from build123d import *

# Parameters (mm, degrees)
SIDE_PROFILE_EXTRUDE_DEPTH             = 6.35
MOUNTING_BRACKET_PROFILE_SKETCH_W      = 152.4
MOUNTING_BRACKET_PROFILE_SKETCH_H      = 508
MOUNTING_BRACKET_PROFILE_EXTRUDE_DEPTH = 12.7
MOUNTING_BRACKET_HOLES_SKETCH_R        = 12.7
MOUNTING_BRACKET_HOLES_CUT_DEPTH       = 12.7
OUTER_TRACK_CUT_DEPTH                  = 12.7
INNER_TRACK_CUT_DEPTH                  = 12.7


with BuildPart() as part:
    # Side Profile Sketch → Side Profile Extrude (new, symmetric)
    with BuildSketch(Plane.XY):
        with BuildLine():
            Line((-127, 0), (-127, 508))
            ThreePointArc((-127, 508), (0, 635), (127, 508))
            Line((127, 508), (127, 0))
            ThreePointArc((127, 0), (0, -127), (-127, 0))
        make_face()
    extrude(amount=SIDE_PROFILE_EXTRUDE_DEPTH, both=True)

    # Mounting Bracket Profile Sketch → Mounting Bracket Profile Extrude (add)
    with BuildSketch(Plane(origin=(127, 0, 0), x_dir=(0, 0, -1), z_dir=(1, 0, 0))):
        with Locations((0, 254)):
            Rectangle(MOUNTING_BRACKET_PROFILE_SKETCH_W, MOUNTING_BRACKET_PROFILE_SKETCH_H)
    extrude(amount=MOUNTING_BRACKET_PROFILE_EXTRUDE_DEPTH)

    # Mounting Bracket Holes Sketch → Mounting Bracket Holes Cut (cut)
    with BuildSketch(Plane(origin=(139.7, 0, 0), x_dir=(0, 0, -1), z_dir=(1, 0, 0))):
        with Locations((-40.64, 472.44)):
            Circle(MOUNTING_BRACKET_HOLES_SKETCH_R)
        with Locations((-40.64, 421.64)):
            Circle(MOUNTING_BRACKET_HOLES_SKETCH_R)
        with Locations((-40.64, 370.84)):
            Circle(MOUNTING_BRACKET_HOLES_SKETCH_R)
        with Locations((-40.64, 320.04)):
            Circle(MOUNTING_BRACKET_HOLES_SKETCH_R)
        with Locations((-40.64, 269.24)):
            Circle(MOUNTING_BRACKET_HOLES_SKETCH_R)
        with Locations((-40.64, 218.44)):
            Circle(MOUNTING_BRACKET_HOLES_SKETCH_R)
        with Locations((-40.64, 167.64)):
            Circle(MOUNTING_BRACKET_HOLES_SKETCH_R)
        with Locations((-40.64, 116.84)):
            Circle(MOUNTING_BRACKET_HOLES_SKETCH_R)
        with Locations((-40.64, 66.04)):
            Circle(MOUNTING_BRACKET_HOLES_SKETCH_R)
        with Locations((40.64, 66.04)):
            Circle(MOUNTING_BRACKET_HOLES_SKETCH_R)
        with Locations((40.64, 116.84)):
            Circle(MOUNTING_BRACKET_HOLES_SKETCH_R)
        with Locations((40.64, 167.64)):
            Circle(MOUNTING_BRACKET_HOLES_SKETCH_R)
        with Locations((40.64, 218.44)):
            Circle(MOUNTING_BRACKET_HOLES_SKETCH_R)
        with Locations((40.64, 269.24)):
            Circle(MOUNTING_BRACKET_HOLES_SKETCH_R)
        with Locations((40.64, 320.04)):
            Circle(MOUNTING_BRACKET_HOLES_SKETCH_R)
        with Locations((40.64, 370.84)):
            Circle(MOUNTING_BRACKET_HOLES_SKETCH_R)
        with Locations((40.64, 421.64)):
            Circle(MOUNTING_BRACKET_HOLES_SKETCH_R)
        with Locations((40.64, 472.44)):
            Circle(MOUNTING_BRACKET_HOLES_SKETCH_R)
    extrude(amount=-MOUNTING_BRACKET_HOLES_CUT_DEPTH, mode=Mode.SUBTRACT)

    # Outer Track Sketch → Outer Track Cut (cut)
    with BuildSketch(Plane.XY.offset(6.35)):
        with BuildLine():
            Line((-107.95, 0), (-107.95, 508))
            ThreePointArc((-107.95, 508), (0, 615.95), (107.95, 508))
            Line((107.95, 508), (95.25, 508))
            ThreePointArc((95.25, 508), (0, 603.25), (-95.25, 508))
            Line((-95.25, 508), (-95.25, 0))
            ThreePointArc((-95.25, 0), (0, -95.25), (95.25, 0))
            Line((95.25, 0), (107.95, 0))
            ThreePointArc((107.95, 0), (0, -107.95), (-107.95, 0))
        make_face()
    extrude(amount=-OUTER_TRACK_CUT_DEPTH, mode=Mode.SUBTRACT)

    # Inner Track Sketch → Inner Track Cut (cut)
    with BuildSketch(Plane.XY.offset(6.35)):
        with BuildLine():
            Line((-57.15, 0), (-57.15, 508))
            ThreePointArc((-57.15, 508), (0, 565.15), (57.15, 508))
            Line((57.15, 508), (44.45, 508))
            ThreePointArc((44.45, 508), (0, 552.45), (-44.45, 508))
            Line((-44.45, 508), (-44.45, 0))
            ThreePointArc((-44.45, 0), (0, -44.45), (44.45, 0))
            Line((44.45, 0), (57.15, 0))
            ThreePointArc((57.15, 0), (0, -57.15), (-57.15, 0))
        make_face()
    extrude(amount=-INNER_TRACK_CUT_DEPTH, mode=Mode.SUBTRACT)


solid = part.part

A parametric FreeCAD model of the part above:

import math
import FreeCAD as App
import Part
import Sketcher
Q = App.Units.Quantity


def add_polygon(sketch, points):
    """Adds a closed chain of lines whose ends are joined by coincident constraints."""
    first, n = sketch.GeometryCount, len(points)
    for a, b in zip(points, points[1:] + points[:1]):
        sketch.addGeometry(Part.LineSegment(App.Vector(*a, 0), App.Vector(*b, 0)), False)
    for i in range(n):
        sketch.addConstraint(Sketcher.Constraint("Coincident", first + i, 2, first + (i + 1) % n, 1))

doc = App.newDocument("Part")
body = doc.addObject("PartDesign::Body", "Body")

# Sketch on XY plane
sketch1 = doc.addObject("Sketcher::SketchObject", "Sketch")
body.addObject(sketch1)
sketch1.AttachmentSupport = (doc.XY_Plane, [""])
sketch1.MapMode = "FlatFace"
sketch1.addGeometry([
    Part.LineSegment(App.Vector(-127, 508, 0), App.Vector(-127, 0, 0)),
    Part.ArcOfCircle(Part.Circle(App.Vector(0, 0, 0), App.Vector(0, 0, 1), 127), math.radians(180), math.radians(360)),
    Part.LineSegment(App.Vector(127, 0, 0), App.Vector(127, 508, 0)),
    Part.ArcOfCircle(Part.Circle(App.Vector(0, 508, 0), App.Vector(0, 0, 1), 127), math.radians(0), math.radians(180)),
], False)
sketch1.addConstraint([
    Sketcher.Constraint("Tangent", 0, 2, 1, 1),
    Sketcher.Constraint("Tangent", 1, 2, 2, 1),
    Sketcher.Constraint("Tangent", 2, 2, 3, 1),
    Sketcher.Constraint("Tangent", 3, 2, 0, 1),
    Sketcher.Constraint("Vertical", 0),
    Sketcher.Constraint("Vertical", 2),
    Sketcher.Constraint("Coincident", 1, 3, -1, 1),
    Sketcher.Constraint("Radius", 1, Q("5 in")),
    Sketcher.Constraint("DistanceY", 0, 2, 0, 1, Q("20 in")),
])
pad1 = doc.addObject("PartDesign::Pad", "Pad")
body.addObject(pad1)
pad1.Profile = sketch1
pad1.Length = Q("0.5 in")
pad1.Midplane = True

# Sketch on YZ plane
sketch2 = doc.addObject("Sketcher::SketchObject", "Sketch001")
body.addObject(sketch2)
sketch2.AttachmentSupport = (doc.YZ_Plane, [""])
sketch2.MapMode = "FlatFace"
sketch2.AttachmentOffset = App.Placement(App.Vector(0, 0, 5 * 25.4), App.Rotation())
add_polygon(sketch2, [(508, 76), (0, 76), (0, -76), (508, -76)])  # lines 0-3
sketch2.addConstraint([
    Sketcher.Constraint("Horizontal", 0),
    Sketcher.Constraint("Vertical", 1),
    Sketcher.Constraint("Horizontal", 2),
    Sketcher.Constraint("Vertical", 3),
    Sketcher.Constraint("Symmetric", 0, 2, 1, 2, -1, 1),
    Sketcher.Constraint("DistanceX", 0, 2, 0, 1, Q("20 in")),
    Sketcher.Constraint("DistanceY", 1, 2, 1, 1, Q("6 in")),
])
pad2 = doc.addObject("PartDesign::Pad", "Pad001")
body.addObject(pad2)
pad2.Profile = sketch2
pad2.Length = Q("0.5 in")

# Sketch on YZ plane
sketch3 = doc.addObject("Sketcher::SketchObject", "Sketch002")
body.addObject(sketch3)
sketch3.AttachmentSupport = (doc.YZ_Plane, [""])
sketch3.MapMode = "FlatFace"
sketch3.AttachmentOffset = App.Placement(App.Vector(0, 0, 5.5 * 25.4), App.Rotation())
sketch3.addGeometry([
    Part.Circle(App.Vector(472, 41, 0), App.Vector(0, 0, 1), 13),  # 0
    Part.Circle(App.Vector(422, 41, 0), App.Vector(0, 0, 1), 13),  # 1
    Part.Circle(App.Vector(371, 41, 0), App.Vector(0, 0, 1), 13),  # 2
    Part.Circle(App.Vector(320, 41, 0), App.Vector(0, 0, 1), 13),  # 3
    Part.Circle(App.Vector(269, 41, 0), App.Vector(0, 0, 1), 13),  # 4
    Part.Circle(App.Vector(218, 41, 0), App.Vector(0, 0, 1), 13),  # 5
    Part.Circle(App.Vector(168, 41, 0), App.Vector(0, 0, 1), 13),  # 6
    Part.Circle(App.Vector(117, 41, 0), App.Vector(0, 0, 1), 13),  # 7
    Part.Circle(App.Vector(66, 41, 0), App.Vector(0, 0, 1), 13),  # 8
    Part.Circle(App.Vector(66, -41, 0), App.Vector(0, 0, 1), 13),  # 9
    Part.Circle(App.Vector(117, -41, 0), App.Vector(0, 0, 1), 13),  # 10
    Part.Circle(App.Vector(168, -41, 0), App.Vector(0, 0, 1), 13),  # 11
    Part.Circle(App.Vector(218, -41, 0), App.Vector(0, 0, 1), 13),  # 12
    Part.Circle(App.Vector(269, -41, 0), App.Vector(0, 0, 1), 13),  # 13
    Part.Circle(App.Vector(320, -41, 0), App.Vector(0, 0, 1), 13),  # 14
    Part.Circle(App.Vector(371, -41, 0), App.Vector(0, 0, 1), 13),  # 15
    Part.Circle(App.Vector(422, -41, 0), App.Vector(0, 0, 1), 13),  # 16
    Part.Circle(App.Vector(472, -41, 0), App.Vector(0, 0, 1), 13),  # 17
], False)
sketch3.addConstraint([
    Sketcher.Constraint("Equal", 0, 1),
    Sketcher.Constraint("Equal", 1, 2),
    Sketcher.Constraint("Equal", 2, 3),
    Sketcher.Constraint("Equal", 3, 4),
    Sketcher.Constraint("Equal", 4, 5),
    Sketcher.Constraint("Equal", 5, 6),
    Sketcher.Constraint("Equal", 6, 7),
    Sketcher.Constraint("Equal", 7, 8),
    Sketcher.Constraint("Equal", 8, 9),
    Sketcher.Constraint("Equal", 9, 10),
    Sketcher.Constraint("Equal", 10, 11),
    Sketcher.Constraint("Equal", 11, 12),
    Sketcher.Constraint("Equal", 12, 13),
    Sketcher.Constraint("Equal", 13, 14),
    Sketcher.Constraint("Equal", 14, 15),
    Sketcher.Constraint("Equal", 15, 16),
    Sketcher.Constraint("Equal", 16, 17),
    Sketcher.Constraint("Symmetric", 8, 3, 9, 3, -1),
    Sketcher.Constraint("Symmetric", 7, 3, 10, 3, -1),
    Sketcher.Constraint("Symmetric", 6, 3, 11, 3, -1),
    Sketcher.Constraint("Symmetric", 5, 3, 12, 3, -1),
    Sketcher.Constraint("Symmetric", 4, 3, 13, 3, -1),
    Sketcher.Constraint("Symmetric", 3, 3, 14, 3, -1),
    Sketcher.Constraint("Symmetric", 2, 3, 15, 3, -1),
    Sketcher.Constraint("Symmetric", 1, 3, 16, 3, -1),
    Sketcher.Constraint("Symmetric", 0, 3, 17, 3, -1),
    Sketcher.Constraint("Horizontal", 0, 3, 1, 3),
    Sketcher.Constraint("Horizontal", 1, 3, 2, 3),
    Sketcher.Constraint("Horizontal", 2, 3, 3, 3),
    Sketcher.Constraint("Horizontal", 3, 3, 4, 3),
    Sketcher.Constraint("Horizontal", 4, 3, 5, 3),
    Sketcher.Constraint("Horizontal", 5, 3, 6, 3),
    Sketcher.Constraint("Horizontal", 6, 3, 7, 3),
    Sketcher.Constraint("Horizontal", 7, 3, 8, 3),
    Sketcher.Constraint("Diameter", 0, Q("1 in")),
    Sketcher.Constraint("DistanceX", 1, 3, 0, 3, Q("2 in")),
    Sketcher.Constraint("DistanceX", 2, 3, 1, 3, Q("2 in")),
    Sketcher.Constraint("DistanceX", 3, 3, 2, 3, Q("2 in")),
    Sketcher.Constraint("DistanceX", 4, 3, 3, 3, Q("2 in")),
    Sketcher.Constraint("DistanceX", 5, 3, 4, 3, Q("2 in")),
    Sketcher.Constraint("DistanceX", 6, 3, 5, 3, Q("2 in")),
    Sketcher.Constraint("DistanceX", 7, 3, 6, 3, Q("2 in")),
    Sketcher.Constraint("DistanceX", 8, 3, 7, 3, Q("2 in")),
    Sketcher.Constraint("DistanceX", -1, 1, 0, 3, Q("18.6 in")),
    Sketcher.Constraint("DistanceY", -1, 1, 0, 3, Q("1.6 in")),
])
pocket1 = doc.addObject("PartDesign::Pocket", "Pocket")
body.addObject(pocket1)
pocket1.Profile = sketch3
pocket1.Length = Q("0.5 in")

# Sketch on XY plane
sketch4 = doc.addObject("Sketcher::SketchObject", "Sketch003")
body.addObject(sketch4)
sketch4.AttachmentSupport = (doc.XY_Plane, [""])
sketch4.MapMode = "FlatFace"
sketch4.AttachmentOffset = App.Placement(App.Vector(0, 0, 0.25 * 25.4), App.Rotation())
sketch4.addGeometry([
    Part.LineSegment(App.Vector(-108, 508, 0), App.Vector(-108, 0, 0)),  # 0
    Part.ArcOfCircle(Part.Circle(App.Vector(0, 0, 0), App.Vector(0, 0, 1), 108), math.radians(180), math.radians(360)),  # 1
    Part.LineSegment(App.Vector(108, 0, 0), App.Vector(95, 0, 0)),  # 2
    Part.ArcOfCircle(Part.Circle(App.Vector(0, 0, 0), App.Vector(0, 0, 1), 95), math.radians(180), math.radians(360)),  # 3
    Part.LineSegment(App.Vector(-95, 0, 0), App.Vector(-95, 508, 0)),  # 4
    Part.ArcOfCircle(Part.Circle(App.Vector(0, 508, 0), App.Vector(0, 0, 1), 95), math.radians(0), math.radians(180)),  # 5
    Part.LineSegment(App.Vector(95, 508, 0), App.Vector(108, 508, 0)),  # 6
    Part.ArcOfCircle(Part.Circle(App.Vector(0, 508, 0), App.Vector(0, 0, 1), 108), math.radians(0), math.radians(180)),  # 7
], False)
sketch4.addConstraint([
    Sketcher.Constraint("Tangent", 0, 2, 1, 1),
    Sketcher.Constraint("Coincident", 1, 2, 2, 1),
    Sketcher.Constraint("Coincident", 2, 2, 3, 2),
    Sketcher.Constraint("Tangent", 3, 1, 4, 1),
    Sketcher.Constraint("Tangent", 4, 2, 5, 2),
    Sketcher.Constraint("Coincident", 5, 1, 6, 1),
    Sketcher.Constraint("Coincident", 6, 2, 7, 1),
    Sketcher.Constraint("Tangent", 7, 2, 0, 1),
    Sketcher.Constraint("Vertical", 0),
    Sketcher.Constraint("Horizontal", 2),
    Sketcher.Constraint("Vertical", 4),
    Sketcher.Constraint("Horizontal", 6),
    Sketcher.Constraint("Coincident", 1, 3, -1, 1),
    Sketcher.Constraint("Coincident", 3, 3, -1, 1),
    Sketcher.Constraint("Coincident", 7, 3, 5, 3),
    Sketcher.Constraint("Equal", 3, 5),
    Sketcher.Constraint("PointOnObject", 1, 2, -1),
    Sketcher.Constraint("Horizontal", 4, 2, 5, 1),
    Sketcher.Constraint("DistanceY", 0, 2, 0, 1, Q("20 in")),
    Sketcher.Constraint("Radius", 1, Q("4.25 in")),
    Sketcher.Constraint("Radius", 3, Q("3.75 in")),
])
pocket2 = doc.addObject("PartDesign::Pocket", "Pocket001")
body.addObject(pocket2)
pocket2.Profile = sketch4
pocket2.Length = Q("0.5 in")

# Sketch on XY plane
sketch5 = doc.addObject("Sketcher::SketchObject", "Sketch004")
body.addObject(sketch5)
sketch5.AttachmentSupport = (doc.XY_Plane, [""])
sketch5.MapMode = "FlatFace"
sketch5.AttachmentOffset = App.Placement(App.Vector(0, 0, 0.25 * 25.4), App.Rotation())
sketch5.addGeometry([
    Part.LineSegment(App.Vector(-57, 508, 0), App.Vector(-57, 0, 0)),  # 0
    Part.ArcOfCircle(Part.Circle(App.Vector(0, 0, 0), App.Vector(0, 0, 1), 57), math.radians(180), math.radians(360)),  # 1
    Part.LineSegment(App.Vector(57, 0, 0), App.Vector(44, 0, 0)),  # 2
    Part.ArcOfCircle(Part.Circle(App.Vector(0, 0, 0), App.Vector(0, 0, 1), 44), math.radians(180), math.radians(360)),  # 3
    Part.LineSegment(App.Vector(-44, 0, 0), App.Vector(-44, 508, 0)),  # 4
    Part.ArcOfCircle(Part.Circle(App.Vector(0, 508, 0), App.Vector(0, 0, 1), 44), math.radians(0), math.radians(180)),  # 5
    Part.LineSegment(App.Vector(44, 508, 0), App.Vector(57, 508, 0)),  # 6
    Part.ArcOfCircle(Part.Circle(App.Vector(0, 508, 0), App.Vector(0, 0, 1), 57), math.radians(0), math.radians(180)),  # 7
], False)
sketch5.addConstraint([
    Sketcher.Constraint("Tangent", 0, 2, 1, 1),
    Sketcher.Constraint("Coincident", 1, 2, 2, 1),
    Sketcher.Constraint("Coincident", 2, 2, 3, 2),
    Sketcher.Constraint("Tangent", 3, 1, 4, 1),
    Sketcher.Constraint("Tangent", 4, 2, 5, 2),
    Sketcher.Constraint("Coincident", 5, 1, 6, 1),
    Sketcher.Constraint("Coincident", 6, 2, 7, 1),
    Sketcher.Constraint("Tangent", 7, 2, 0, 1),
    Sketcher.Constraint("Vertical", 0),
    Sketcher.Constraint("Horizontal", 2),
    Sketcher.Constraint("Vertical", 4),
    Sketcher.Constraint("Horizontal", 6),
    Sketcher.Constraint("Coincident", 1, 3, -1, 1),
    Sketcher.Constraint("Coincident", 3, 3, -1, 1),
    Sketcher.Constraint("Coincident", 7, 3, 5, 3),
    Sketcher.Constraint("Equal", 3, 5),
    Sketcher.Constraint("PointOnObject", 1, 2, -1),
    Sketcher.Constraint("Horizontal", 4, 2, 5, 1),
    Sketcher.Constraint("DistanceY", 0, 2, 0, 1, Q("20 in")),
    Sketcher.Constraint("Radius", 1, Q("2.25 in")),
    Sketcher.Constraint("Radius", 3, Q("1.75 in")),
])
pocket3 = doc.addObject("PartDesign::Pocket", "Pocket002")
body.addObject(pocket3)
pocket3.Profile = sketch5
pocket3.Length = Q("0.5 in")

doc.recompute()
